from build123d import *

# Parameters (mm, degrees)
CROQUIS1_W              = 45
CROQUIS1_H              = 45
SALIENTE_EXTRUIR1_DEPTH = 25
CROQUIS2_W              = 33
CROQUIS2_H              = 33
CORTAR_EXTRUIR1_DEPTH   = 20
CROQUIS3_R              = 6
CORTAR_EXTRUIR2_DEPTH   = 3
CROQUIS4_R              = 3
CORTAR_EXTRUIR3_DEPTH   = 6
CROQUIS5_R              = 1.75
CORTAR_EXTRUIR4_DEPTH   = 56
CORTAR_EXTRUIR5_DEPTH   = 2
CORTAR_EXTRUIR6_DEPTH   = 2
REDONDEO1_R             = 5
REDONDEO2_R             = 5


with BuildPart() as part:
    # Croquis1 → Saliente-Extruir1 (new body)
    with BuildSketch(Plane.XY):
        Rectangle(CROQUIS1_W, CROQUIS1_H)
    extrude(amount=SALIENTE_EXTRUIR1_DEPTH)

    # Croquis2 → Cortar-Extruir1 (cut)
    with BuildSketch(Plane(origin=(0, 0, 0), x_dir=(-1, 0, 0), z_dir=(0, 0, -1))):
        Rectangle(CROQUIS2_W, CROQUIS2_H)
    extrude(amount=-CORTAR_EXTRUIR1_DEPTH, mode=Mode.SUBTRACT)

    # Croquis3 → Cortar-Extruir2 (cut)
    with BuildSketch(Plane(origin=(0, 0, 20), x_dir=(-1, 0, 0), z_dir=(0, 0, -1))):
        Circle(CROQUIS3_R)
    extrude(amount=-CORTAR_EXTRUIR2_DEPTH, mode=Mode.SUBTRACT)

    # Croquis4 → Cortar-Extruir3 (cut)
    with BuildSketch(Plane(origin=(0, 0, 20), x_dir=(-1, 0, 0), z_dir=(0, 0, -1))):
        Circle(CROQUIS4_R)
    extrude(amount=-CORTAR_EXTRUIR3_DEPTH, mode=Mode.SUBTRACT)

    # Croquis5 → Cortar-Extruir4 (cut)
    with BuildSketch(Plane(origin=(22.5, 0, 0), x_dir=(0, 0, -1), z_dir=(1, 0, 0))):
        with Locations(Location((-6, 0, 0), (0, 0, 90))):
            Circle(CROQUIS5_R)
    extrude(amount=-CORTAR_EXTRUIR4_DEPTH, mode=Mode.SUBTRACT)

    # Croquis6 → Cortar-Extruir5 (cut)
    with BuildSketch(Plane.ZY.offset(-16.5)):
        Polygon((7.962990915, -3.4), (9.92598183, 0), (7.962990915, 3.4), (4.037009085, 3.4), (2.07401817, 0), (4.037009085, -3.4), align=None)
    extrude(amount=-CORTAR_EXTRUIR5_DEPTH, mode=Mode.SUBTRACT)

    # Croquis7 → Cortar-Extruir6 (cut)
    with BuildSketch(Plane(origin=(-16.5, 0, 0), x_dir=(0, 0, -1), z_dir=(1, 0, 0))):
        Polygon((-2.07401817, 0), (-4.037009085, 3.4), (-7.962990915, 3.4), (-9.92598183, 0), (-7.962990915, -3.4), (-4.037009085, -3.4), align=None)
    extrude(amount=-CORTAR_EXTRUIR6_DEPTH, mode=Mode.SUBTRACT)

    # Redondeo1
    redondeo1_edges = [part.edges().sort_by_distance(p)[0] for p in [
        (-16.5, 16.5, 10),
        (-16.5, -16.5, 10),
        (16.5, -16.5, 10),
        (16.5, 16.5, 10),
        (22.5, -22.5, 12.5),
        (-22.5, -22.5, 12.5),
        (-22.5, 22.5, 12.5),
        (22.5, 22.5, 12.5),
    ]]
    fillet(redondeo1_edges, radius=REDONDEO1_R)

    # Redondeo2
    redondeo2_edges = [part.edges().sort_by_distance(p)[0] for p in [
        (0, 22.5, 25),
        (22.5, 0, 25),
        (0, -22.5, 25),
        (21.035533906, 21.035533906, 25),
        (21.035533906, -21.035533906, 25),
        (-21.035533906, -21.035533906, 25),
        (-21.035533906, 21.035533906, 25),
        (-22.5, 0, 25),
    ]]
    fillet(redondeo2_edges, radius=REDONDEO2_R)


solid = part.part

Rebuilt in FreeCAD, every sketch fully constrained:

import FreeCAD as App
import Part
import Sketcher
from FreeCAD import Vector
Q = App.Units.Quantity


def edges_at(feature, points):
    """Names of the edges that pass closest to the given points."""
    edges = feature.Shape.Edges
    near = lambda p: min(range(len(edges)), key=lambda i: edges[i].distToShape(Part.Vertex(*p))[0])
    return sorted({f"Edge{near(p) + 1}" for p in points})

doc = App.newDocument("Part")
body = doc.addObject("PartDesign::Body", "Body")

# Sketch on XY plane
sketch1 = body.newObject("Sketcher::SketchObject", "Sketch")
sketch1.AttachmentSupport = (doc.getObject("XY_Plane"), [""])
sketch1.MapMode = "FlatFace"
sketch1.addGeometry(Part.LineSegment(Vector(-22.5, 22.5, 0), Vector(-22.5, -22.5, 0)), False)
sketch1.addGeometry(Part.LineSegment(Vector(-22.5, -22.5, 0), Vector(22.5, -22.5, 0)), False)
sketch1.addGeometry(Part.LineSegment(Vector(22.5, -22.5, 0), Vector(22.5, 22.5, 0)), False)
sketch1.addGeometry(Part.LineSegment(Vector(22.5, 22.5, 0), Vector(-22.5, 22.5, 0)), False)
sketch1.addConstraint(Sketcher.Constraint("Coincident", 0, 2, 1, 1))
sketch1.addConstraint(Sketcher.Constraint("Coincident", 1, 2, 2, 1))
sketch1.addConstraint(Sketcher.Constraint("Coincident", 2, 2, 3, 1))
sketch1.addConstraint(Sketcher.Constraint("Coincident", 3, 2, 0, 1))
sketch1.addConstraint(Sketcher.Constraint("Vertical", 0))
sketch1.addConstraint(Sketcher.Constraint("Horizontal", 1))
sketch1.addConstraint(Sketcher.Constraint("Vertical", 2))
sketch1.addConstraint(Sketcher.Constraint("Horizontal", 3))
sketch1.addConstraint(Sketcher.Constraint("Symmetric", 0, 2, 2, 2, -1, 1))
sketch1.addConstraint(Sketcher.Constraint("Equal", 3, 0))
sketch1.addConstraint(Sketcher.Constraint("DistanceX", 1, 1, 1, 2, 45.0))
pad1 = body.newObject("PartDesign::Pad", "Pad")
pad1.Profile = sketch1
pad1.Length = 25

# Sketch on XY plane
sketch2 = body.newObject("Sketcher::SketchObject", "Sketch001")
sketch2.AttachmentSupport = (doc.getObject("XY_Plane"), [""])
sketch2.MapMode = "FlatFace"
sketch2.addGeometry(Part.LineSegment(Vector(16.5, 16.5, 0), Vector(16.5, -16.5, 0)), False)
sketch2.addGeometry(Part.LineSegment(Vector(16.5, -16.5, 0), Vector(-16.5, -16.5, 0)), False)
sketch2.addGeometry(Part.LineSegment(Vector(-16.5, -16.5, 0), Vector(-16.5, 16.5, 0)), False)
sketch2.addGeometry(Part.LineSegment(Vector(-16.5, 16.5, 0), Vector(16.5, 16.5, 0)), False)
sketch2.addConstraint(Sketcher.Constraint("Coincident", 0, 2, 1, 1))
sketch2.addConstraint(Sketcher.Constraint("Coincident", 1, 2, 2, 1))
sketch2.addConstraint(Sketcher.Constraint("Coincident", 2, 2, 3, 1))
sketch2.addConstraint(Sketcher.Constraint("Coincident", 3, 2, 0, 1))
sketch2.addConstraint(Sketcher.Constraint("Vertical", 0))
sketch2.addConstraint(Sketcher.Constraint("Horizontal", 1))
sketch2.addConstraint(Sketcher.Constraint("Vertical", 2))
sketch2.addConstraint(Sketcher.Constraint("Horizontal", 3))
sketch2.addConstraint(Sketcher.Constraint("Symmetric", 0, 2, 2, 2, -1, 1))
sketch2.addConstraint(Sketcher.Constraint("Equal", 3, 0))
sketch2.addConstraint(Sketcher.Constraint("DistanceX", 1, 2, 1, 1, 33.0))
pocket1 = body.newObject("PartDesign::Pocket", "Pocket")
pocket1.Profile = sketch2
pocket1.Length = 20
pocket1.Reversed = True

# Sketch on XY plane
sketch3 = body.newObject("Sketcher::SketchObject", "Sketch002")
sketch3.AttachmentSupport = (doc.getObject("XY_Plane"), [""])
sketch3.MapMode = "FlatFace"
sketch3.AttachmentOffset = App.Placement(Vector(0, 0, 20), App.Rotation())
sketch3.addGeometry(Part.Circle(Vector(0, 0, 0), Vector(0, 0, 1), 6), False)
sketch3.addConstraint(Sketcher.Constraint("Coincident", 0, 3, -1, 1))
sketch3.addConstraint(Sketcher.Constraint("Diameter", 0, 12.0))
pocket2 = body.newObject("PartDesign::Pocket", "Pocket001")
pocket2.Profile = sketch3
pocket2.Length = 3
pocket2.Reversed = True

# Sketch on XY plane
sketch4 = body.newObject("Sketcher::SketchObject", "Sketch003")
sketch4.AttachmentSupport = (doc.getObject("XY_Plane"), [""])
sketch4.MapMode = "FlatFace"
sketch4.AttachmentOffset = App.Placement(Vector(0, 0, 20), App.Rotation())
sketch4.addGeometry(Part.Circle(Vector(0, 0, 0), Vector(0, 0, 1), 3), False)
sketch4.addConstraint(Sketcher.Constraint("Coincident", 0, 3, -1, 1))
sketch4.addConstraint(Sketcher.Constraint("Diameter", 0, 6.0))
pocket3 = body.newObject("PartDesign::Pocket", "Pocket002")
pocket3.Profile = sketch4
pocket3.Length = 6
pocket3.Reversed = True

# Sketch on YZ plane
sketch5 = body.newObject("Sketcher::SketchObject", "Sketch004")
sketch5.AttachmentSupport = (doc.getObject("YZ_Plane"), [""])
sketch5.MapMode = "FlatFace"
sketch5.AttachmentOffset = App.Placement(Vector(0, 0, 22.5), App.Rotation())
sketch5.addGeometry(Part.Circle(Vector(0, 6, 0), Vector(0, 0, 1), 1.75), False)
sketch5.addConstraint(Sketcher.Constraint("PointOnObject", 0, 3, -2))
sketch5.addConstraint(Sketcher.Constraint("Diameter", 0, 3.5))
sketch5.addConstraint(Sketcher.Constraint("DistanceY", -1, 1, 0, 3, 6.0))
pocket4 = body.newObject("PartDesign::Pocket", "Pocket003")
pocket4.Profile = sketch5
pocket4.Length = 56

# Sketch on YZ plane
sketch6 = body.newObject("Sketcher::SketchObject", "Sketch005")
sketch6.AttachmentSupport = (doc.getObject("YZ_Plane"), [""])
sketch6.MapMode = "FlatFace"
sketch6.AttachmentOffset = App.Placement(Vector(0, 0, 16.5), App.Rotation())
sketch6.addGeometry(Part.LineSegment(Vector(-3.4, 7.962991, 0), Vector(0, 9.925982, 0)), False)
sketch6.addGeometry(Part.LineSegment(Vector(0, 9.925982, 0), Vector(3.4, 7.962991, 0)), False)
sketch6.addGeometry(Part.LineSegment(Vector(3.4, 7.962991, 0), Vector(3.4, 4.037009, 0)), False)
sketch6.addGeometry(Part.LineSegment(Vector(3.4, 4.037009, 0), Vector(0, 2.074018, 0)), False)
sketch6.addGeometry(Part.LineSegment(Vector(0, 2.074018, 0), Vector(-3.4, 4.037009, 0)), False)
sketch6.addGeometry(Part.LineSegment(Vector(-3.4, 4.037009, 0), Vector(-3.4, 7.962991, 0)), False)
sketch6.addConstraint(Sketcher.Constraint("Coincident", 0, 2, 1, 1))
sketch6.addConstraint(Sketcher.Constraint("Coincident", 1, 2, 2, 1))
sketch6.addConstraint(Sketcher.Constraint("Coincident", 2, 2, 3, 1))
sketch6.addConstraint(Sketcher.Constraint("Coincident", 3, 2, 4, 1))
sketch6.addConstraint(Sketcher.Constraint("Coincident", 4, 2, 5, 1))
sketch6.addConstraint(Sketcher.Constraint("Coincident", 5, 2, 0, 1))
sketch6.addConstraint(Sketcher.Constraint("Vertical", 2))
sketch6.addConstraint(Sketcher.Constraint("Vertical", 5))
sketch6.addConstraint(Sketcher.Constraint("Symmetric", 2, 2, 4, 2, -2))
sketch6.addConstraint(Sketcher.Constraint("PointOnObject", 0, 2, -2))
sketch6.addConstraint(Sketcher.Constraint("PointOnObject", 3, 2, -2))
sketch6.addConstraint(Sketcher.Constraint("Parallel", 0, 3))
sketch6.addConstraint(Sketcher.Constraint("Parallel", 1, 4))
sketch6.addConstraint(Sketcher.Constraint("Angle", 0, Q("30 deg")))
sketch6.addConstraint(Sketcher.Constraint("DistanceX", -1, 1, 1, 2, 3.4))
sketch6.addConstraint(Sketcher.Constraint("DistanceY", 2, 2, 2, 1, 3.925982))
sketch6.addConstraint(Sketcher.Constraint("DistanceY", -1, 1, 0, 2, 9.925982))
pocket5 = body.newObject("PartDesign::Pocket", "Pocket004")
pocket5.Profile = sketch6
pocket5.Length = 2
pocket5.Reversed = True

# Sketch on YZ plane
sketch7 = body.newObject("Sketcher::SketchObject", "Sketch006")
sketch7.AttachmentSupport = (doc.getObject("YZ_Plane"), [""])
sketch7.MapMode = "FlatFace"
sketch7.AttachmentOffset = App.Placement(Vector(0, 0, -16.5), App.Rotation())
sketch7.addGeometry(Part.LineSegment(Vector(0, 2.074018, 0), Vector(3.4, 4.037009, 0)), False)
sketch7.addGeometry(Part.LineSegment(Vector(3.4, 4.037009, 0), Vector(3.4, 7.962991, 0)), False)
sketch7.addGeometry(Part.LineSegment(Vector(3.4, 7.962991, 0), Vector(0, 9.925982, 0)), False)
sketch7.addGeometry(Part.LineSegment(Vector(0, 9.925982, 0), Vector(-3.4, 7.962991, 0)), False)
sketch7.addGeometry(Part.LineSegment(Vector(-3.4, 7.962991, 0), Vector(-3.4, 4.037009, 0)), False)
sketch7.addGeometry(Part.LineSegment(Vector(-3.4, 4.037009, 0), Vector(0, 2.074018, 0)), False)
sketch7.addConstraint(Sketcher.Constraint("Coincident", 0, 2, 1, 1))
sketch7.addConstraint(Sketcher.Constraint("Coincident", 1, 2, 2, 1))
sketch7.addConstraint(Sketcher.Constraint("Coincident", 2, 2, 3, 1))
sketch7.addConstraint(Sketcher.Constraint("Coincident", 3, 2, 4, 1))
sketch7.addConstraint(Sketcher.Constraint("Coincident", 4, 2, 5, 1))
sketch7.addConstraint(Sketcher.Constraint("Coincident", 5, 2, 0, 1))
sketch7.addConstraint(Sketcher.Constraint("Vertical", 1))
sketch7.addConstraint(Sketcher.Constraint("Vertical", 4))
sketch7.addConstraint(Sketcher.Constraint("Symmetric", 1, 2, 3, 2, -2))
sketch7.addConstraint(Sketcher.Constraint("PointOnObject", 2, 2, -2))
sketch7.addConstraint(Sketcher.Constraint("PointOnObject", 5, 2, -2))
sketch7.addConstraint(Sketcher.Constraint("Parallel", 0, 3))
sketch7.addConstraint(Sketcher.Constraint("Parallel", 2, 5))
sketch7.addConstraint(Sketcher.Constraint("Angle", 0, Q("30 deg")))
sketch7.addConstraint(Sketcher.Constraint("DistanceX", -1, 1, 0, 2, 3.4))
sketch7.addConstraint(Sketcher.Constraint("DistanceY", 1, 1, 1, 2, 3.925982))
sketch7.addConstraint(Sketcher.Constraint("DistanceY", -1, 1, 0, 2, 4.037009))
pocket6 = body.newObject("PartDesign::Pocket", "Pocket005")
pocket6.Profile = sketch7
pocket6.Length = 2
doc.recompute()

fillet = body.newObject("PartDesign::Fillet", "Fillet")
fillet.Base = (pocket6, edges_at(pocket6, [
    (-16.5, 16.5, 10),
    (-16.5, -16.5, 10),
    (16.5, -16.5, 10),
    (16.5, 16.5, 10),
    (22.5, -22.5, 12.5),
    (-22.5, -22.5, 12.5),
    (-22.5, 22.5, 12.5),
    (22.5, 22.5, 12.5),
]))
fillet.Radius = 5
doc.recompute()

fillet2 = body.newObject("PartDesign::Fillet", "Fillet001")
fillet2.Base = (fillet, edges_at(fillet, [
    (0, 22.5, 25),
    (22.5, 0, 25),
    (0, -22.5, 25),
    (21.036, 21.036, 25),
    (21.036, -21.036, 25),
    (-21.036, -21.036, 25),
    (-21.036, 21.036, 25),
    (-22.5, 0, 25),
]))
fillet2.Radius = 5

doc.recompute()
